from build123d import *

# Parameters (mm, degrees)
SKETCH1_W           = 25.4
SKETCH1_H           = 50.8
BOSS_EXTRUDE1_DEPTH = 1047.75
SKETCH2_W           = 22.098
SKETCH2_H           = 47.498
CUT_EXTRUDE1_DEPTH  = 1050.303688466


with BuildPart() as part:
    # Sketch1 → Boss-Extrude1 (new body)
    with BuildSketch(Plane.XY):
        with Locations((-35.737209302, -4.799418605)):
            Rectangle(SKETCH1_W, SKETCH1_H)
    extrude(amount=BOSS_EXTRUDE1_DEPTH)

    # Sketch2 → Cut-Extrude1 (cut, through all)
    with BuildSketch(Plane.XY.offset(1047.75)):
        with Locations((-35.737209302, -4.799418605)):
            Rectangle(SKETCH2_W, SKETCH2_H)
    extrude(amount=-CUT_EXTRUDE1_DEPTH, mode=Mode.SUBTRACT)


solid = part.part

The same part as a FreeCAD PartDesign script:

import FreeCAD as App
import Part
import Sketcher
Q = App.Units.Quantity


def add_polygon(sketch, points):
    """Adds a closed chain of lines whose ends are joined by coincident constraints."""
    first, n = sketch.GeometryCount, len(points)
    for a, b in zip(points, points[1:] + points[:1]):
        sketch.addGeometry(Part.LineSegment(App.Vector(*a, 0), App.Vector(*b, 0)), False)
    for i in range(n):
        sketch.addConstraint(Sketcher.Constraint("Coincident", first + i, 2, first + (i + 1) % n, 1))

doc = App.newDocument("Part")
body = doc.addObject("PartDesign::Body", "Body")

sketch1 = body.newObject("Sketcher::SketchObject", "Sketch")
sketch1.AttachmentSupport = (doc.getObject("XY_Plane"), [""])
sketch1.MapMode = "FlatFace"
add_polygon(sketch1, [(-48.437209, 20.600581), (-48.437209, -30.199419), (-23.037209, -30.199419), (-23.037209, 20.600581)])
sketch1.addConstraint(Sketcher.Constraint("Vertical", 0))
sketch1.addConstraint(Sketcher.Constraint("Horizontal", 1))
sketch1.addConstraint(Sketcher.Constraint("Vertical", 2))
sketch1.addConstraint(Sketcher.Constraint("Horizontal", 3))
sketch1.addConstraint(Sketcher.Constraint("DistanceX", 1, 1, 1, 2, Q("1 in")))
sketch1.addConstraint(Sketcher.Constraint("DistanceY", 0, 2, 0, 1, Q("2 in")))
sketch1.addConstraint(Sketcher.Constraint("DistanceX", 0, 2, -1, 1, 48.437209))
sketch1.addConstraint(Sketcher.Constraint("DistanceY", 0, 2, -1, 1, 30.199419))
pad1 = body.newObject("PartDesign::Pad", "Pad")
pad1.Profile = sketch1
pad1.Length = Q("41.25 in")

sketch2 = body.newObject("Sketcher::SketchObject", "Sketch001")
sketch2.AttachmentSupport = (doc.getObject("XY_Plane"), [""])
sketch2.MapMode = "FlatFace"
sketch2.AttachmentOffset = App.Placement(App.Vector(0, 0, 41.25 * 25.4), App.Rotation())
add_polygon(sketch2, [(-46.786209, 18.949581), (-46.786209, -28.548419), (-24.688209, -28.548419), (-24.688209, 18.949581)])
sketch2.addConstraint(Sketcher.Constraint("Vertical", 0))
sketch2.addConstraint(Sketcher.Constraint("Horizontal", 1))
sketch2.addConstraint(Sketcher.Constraint("Vertical", 2))
sketch2.addConstraint(Sketcher.Constraint("Horizontal", 3))
sketch2.addConstraint(Sketcher.Constraint("DistanceX", 1, 1, 1, 2, Q("0.87 in")))
sketch2.addConstraint(Sketcher.Constraint("DistanceY", 0, 2, 0, 1, Q("1.87 in")))
sketch2.addConstraint(Sketcher.Constraint("DistanceX", 0, 2, -1, 1, 46.786209))
sketch2.addConstraint(Sketcher.Constraint("DistanceY", 0, 2, -1, 1, 28.548419))
pocket1 = body.newObject("PartDesign::Pocket", "Pocket")
pocket1.Profile = sketch2
pocket1.Type = "ThroughAll"

doc.recompute()
